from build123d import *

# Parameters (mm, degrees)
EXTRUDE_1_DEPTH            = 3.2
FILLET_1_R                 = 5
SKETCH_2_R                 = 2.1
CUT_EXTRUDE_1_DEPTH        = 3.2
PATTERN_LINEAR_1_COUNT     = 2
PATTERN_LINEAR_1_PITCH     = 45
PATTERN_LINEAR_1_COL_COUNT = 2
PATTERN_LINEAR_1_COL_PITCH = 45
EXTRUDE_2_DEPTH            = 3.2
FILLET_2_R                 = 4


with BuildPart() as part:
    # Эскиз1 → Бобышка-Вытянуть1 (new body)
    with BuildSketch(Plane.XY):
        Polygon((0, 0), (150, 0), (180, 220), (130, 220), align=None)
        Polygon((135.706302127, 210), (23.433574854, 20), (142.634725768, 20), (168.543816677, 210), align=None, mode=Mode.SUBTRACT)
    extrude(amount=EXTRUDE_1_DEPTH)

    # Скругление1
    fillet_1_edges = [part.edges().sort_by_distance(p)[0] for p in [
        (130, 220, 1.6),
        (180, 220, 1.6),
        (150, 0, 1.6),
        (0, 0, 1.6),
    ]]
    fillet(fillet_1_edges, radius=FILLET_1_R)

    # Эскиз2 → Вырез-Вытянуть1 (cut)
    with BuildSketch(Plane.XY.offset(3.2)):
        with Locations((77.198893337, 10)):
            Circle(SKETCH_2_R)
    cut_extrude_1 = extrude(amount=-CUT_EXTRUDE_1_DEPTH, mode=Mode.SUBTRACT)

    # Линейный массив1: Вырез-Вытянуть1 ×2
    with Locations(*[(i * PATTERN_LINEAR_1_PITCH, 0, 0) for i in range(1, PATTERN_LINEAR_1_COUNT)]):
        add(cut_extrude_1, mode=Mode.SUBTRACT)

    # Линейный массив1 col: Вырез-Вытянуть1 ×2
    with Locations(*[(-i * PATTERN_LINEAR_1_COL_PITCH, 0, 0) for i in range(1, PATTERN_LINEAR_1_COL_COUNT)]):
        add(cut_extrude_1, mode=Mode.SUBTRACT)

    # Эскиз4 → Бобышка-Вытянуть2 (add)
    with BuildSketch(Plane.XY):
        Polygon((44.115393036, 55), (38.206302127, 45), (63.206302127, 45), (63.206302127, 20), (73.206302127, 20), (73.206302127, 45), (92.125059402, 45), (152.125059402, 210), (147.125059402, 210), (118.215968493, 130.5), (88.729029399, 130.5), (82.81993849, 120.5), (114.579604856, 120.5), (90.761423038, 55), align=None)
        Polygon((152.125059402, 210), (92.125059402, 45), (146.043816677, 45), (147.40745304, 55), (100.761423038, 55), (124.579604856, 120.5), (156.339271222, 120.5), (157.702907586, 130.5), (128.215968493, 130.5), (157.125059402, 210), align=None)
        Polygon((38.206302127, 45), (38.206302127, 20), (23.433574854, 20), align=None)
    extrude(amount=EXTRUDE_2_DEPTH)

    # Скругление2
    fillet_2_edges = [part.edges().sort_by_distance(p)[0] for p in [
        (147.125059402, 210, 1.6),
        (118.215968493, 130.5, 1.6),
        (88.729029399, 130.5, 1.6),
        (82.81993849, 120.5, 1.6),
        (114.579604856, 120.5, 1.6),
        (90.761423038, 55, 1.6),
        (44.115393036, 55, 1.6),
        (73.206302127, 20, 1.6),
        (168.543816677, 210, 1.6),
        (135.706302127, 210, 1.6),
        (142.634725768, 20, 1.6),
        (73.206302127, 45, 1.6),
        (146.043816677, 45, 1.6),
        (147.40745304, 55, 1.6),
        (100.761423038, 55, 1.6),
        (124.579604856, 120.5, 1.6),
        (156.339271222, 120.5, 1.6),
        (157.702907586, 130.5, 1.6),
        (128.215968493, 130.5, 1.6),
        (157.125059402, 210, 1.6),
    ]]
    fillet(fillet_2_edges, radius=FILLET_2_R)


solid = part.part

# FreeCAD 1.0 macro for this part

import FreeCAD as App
import Part
import Sketcher
from FreeCAD import Vector
Q = App.Units.Quantity


def edges_at(feature, points):
    """Names of the edges that pass closest to the given points."""
    edges = feature.Shape.Edges
    near = lambda p: min(range(len(edges)), key=lambda i: edges[i].distToShape(Part.Vertex(*p))[0])
    return sorted({f"Edge{near(p) + 1}" for p in points})

doc = App.newDocument("Part")
body = doc.addObject("PartDesign::Body", "Body")

sketch1 = body.newObject("Sketcher::SketchObject", "Sketch")
sketch1.AttachmentSupport = (doc.getObject("XY_Plane"), [""])
sketch1.MapMode = "FlatFace"
sketch1.addGeometry([
    Part.LineSegment(Vector(0, 0, 0), Vector(150, 0, 0)),
    Part.LineSegment(Vector(150, 0, 0), Vector(180, 220, 0)),
    Part.LineSegment(Vector(180, 220, 0), Vector(130, 220, 0)),
    Part.LineSegment(Vector(130, 220, 0), Vector(0, 0, 0)),
    Part.LineSegment(Vector(23, 20, 0), Vector(136, 210, 0)),
    Part.LineSegment(Vector(136, 210, 0), Vector(169, 210, 0)),
    Part.LineSegment(Vector(169, 210, 0), Vector(143, 20, 0)),
    Part.LineSegment(Vector(143, 20, 0), Vector(23, 20, 0)),
], False)
sketch1.addConstraint([
    Sketcher.Constraint("Coincident", 0, 2, 1, 1),
    Sketcher.Constraint("Coincident", 1, 2, 2, 1),
    Sketcher.Constraint("Coincident", 2, 2, 3, 1),
    Sketcher.Constraint("Coincident", 3, 2, 0, 1),
    Sketcher.Constraint("Coincident", 4, 2, 5, 1),
    Sketcher.Constraint("Coincident", 5, 2, 6, 1),
    Sketcher.Constraint("Coincident", 6, 2, 7, 1),
    Sketcher.Constraint("Coincident", 7, 2, 4, 1),
    Sketcher.Constraint("Horizontal", 0),
    Sketcher.Constraint("Horizontal", 2),
    Sketcher.Constraint("Horizontal", 5),
    Sketcher.Constraint("Horizontal", 7),
    Sketcher.Constraint("Coincident", 3, 2, -1, 1),
    Sketcher.Constraint("Parallel", 3, 4),
    Sketcher.Constraint("Parallel", 1, 6),
    Sketcher.Constraint("DistanceX", 0, 1, 0, 2, Q("150 mm")),
    Sketcher.Constraint("DistanceX", 2, 2, 2, 1, Q("50 mm")),
    Sketcher.Constraint("DistanceX", -1, 1, 1, 2, Q("180 mm")),
    Sketcher.Constraint("DistanceY", -1, 1, 1, 2, Q("220 mm")),
    Sketcher.Constraint("DistanceY", -1, 1, 4, 2, Q("210 mm")),
    Sketcher.Constraint("DistanceY", -1, 1, 6, 2, Q("20 mm")),
    Sketcher.Constraint("DistanceX", 7, 2, 7, 1, Q("119.201151 mm")),
    Sketcher.Constraint("DistanceX", -1, 1, 4, 2, Q("135.706302 mm")),
])
pad1 = body.newObject("PartDesign::Pad", "Pad")
pad1.Profile = sketch1
pad1.Length = 3.2
doc.recompute()

fillet = body.newObject("PartDesign::Fillet", "Fillet")
fillet.Base = (pad1, edges_at(pad1, [
    (130, 220, 1.6),
    (180, 220, 1.6),
    (150, 0, 1.6),
    (0, 0, 1.6),
]))
fillet.Radius = 5

sketch2 = body.newObject("Sketcher::SketchObject", "Sketch001")
sketch2.AttachmentSupport = (doc.getObject("XY_Plane"), [""])
sketch2.MapMode = "FlatFace"
sketch2.AttachmentOffset = App.Placement(Vector(0, 0, 3.2), App.Rotation())
sketch2.addGeometry(Part.Circle(Vector(77.2, 10, 0), Vector(0, 0, 1), 2.1), False)
sketch2.addConstraint([
    Sketcher.Constraint("Diameter", 0, Q("4.2 mm")),
    Sketcher.Constraint("DistanceY", -1, 1, 0, 3, Q("10 mm")),
    Sketcher.Constraint("DistanceX", -1, 1, 0, 3, Q("77.198893 mm")),
])
pocket1 = body.newObject("PartDesign::Pocket", "Pocket")
pocket1.Profile = sketch2
pocket1.Length = 3.2
doc.recompute()

linearpattern = body.newObject("PartDesign::LinearPattern", "LinearPattern")
linearpattern.Originals = [pocket1]
linearpattern.Direction = (doc.getObject("X_Axis"), [""])
linearpattern.Mode = "offset"
linearpattern.Offset = 45
linearpattern.Occurrences = 2
body.Tip = linearpattern
doc.recompute()

linearpattern2 = body.newObject("PartDesign::LinearPattern", "LinearPattern001")
linearpattern2.Originals = [pocket1]
linearpattern2.Direction = (doc.getObject("X_Axis"), [""])
linearpattern2.Mode = "offset"
linearpattern2.Offset = 45
linearpattern2.Occurrences = 2
linearpattern2.Reversed = True
body.Tip = linearpattern2

sketch3 = body.newObject("Sketcher::SketchObject", "Sketch002")
sketch3.AttachmentSupport = (doc.getObject("XY_Plane"), [""])
sketch3.MapMode = "FlatFace"
sketch3.addGeometry([
    Part.LineSegment(Vector(44, 55, 0), Vector(38, 45, 0)),
    Part.LineSegment(Vector(38, 45, 0), Vector(63, 45, 0)),
    Part.LineSegment(Vector(63, 45, 0), Vector(63, 20, 0)),
    Part.LineSegment(Vector(63, 20, 0), Vector(73, 20, 0)),
    Part.LineSegment(Vector(73, 20, 0), Vector(73, 45, 0)),
    Part.LineSegment(Vector(73, 45, 0), Vector(146, 45, 0)),
    Part.LineSegment(Vector(146, 45, 0), Vector(147, 55, 0)),
    Part.LineSegment(Vector(147, 55, 0), Vector(101, 55, 0)),
    Part.LineSegment(Vector(101, 55, 0), Vector(125, 120, 0)),
    Part.LineSegment(Vector(125, 120, 0), Vector(156, 120, 0)),
    Part.LineSegment(Vector(156, 120, 0), Vector(158, 130, 0)),
    Part.LineSegment(Vector(158, 130, 0), Vector(128, 130, 0)),
    Part.LineSegment(Vector(128, 130, 0), Vector(157, 210, 0)),
    Part.LineSegment(Vector(157, 210, 0), Vector(147, 210, 0)),
    Part.LineSegment(Vector(147, 210, 0), Vector(118, 130, 0)),
    Part.LineSegment(Vector(118, 130, 0), Vector(89, 130, 0)),
    Part.LineSegment(Vector(89, 130, 0), Vector(83, 120, 0)),
    Part.LineSegment(Vector(83, 120, 0), Vector(115, 120, 0)),
    Part.LineSegment(Vector(115, 120, 0), Vector(91, 55, 0)),
    Part.LineSegment(Vector(91, 55, 0), Vector(44, 55, 0)),
    Part.LineSegment(Vector(38, 20, 0), Vector(38, 45, 0)),
    Part.LineSegment(Vector(38, 45, 0), Vector(23, 20, 0)),
    Part.LineSegment(Vector(23, 20, 0), Vector(38, 20, 0)),
], False)
sketch3.addConstraint([
    Sketcher.Constraint("Coincident", 0, 2, 1, 1),
    Sketcher.Constraint("Coincident", 1, 2, 2, 1),
    Sketcher.Constraint("Coincident", 2, 2, 3, 1),
    Sketcher.Constraint("Coincident", 3, 2, 4, 1),
    Sketcher.Constraint("Coincident", 4, 2, 5, 1),
    Sketcher.Constraint("Coincident", 5, 2, 6, 1),
    Sketcher.Constraint("Coincident", 6, 2, 7, 1),
    Sketcher.Constraint("Coincident", 7, 2, 8, 1),
    Sketcher.Constraint("Coincident", 8, 2, 9, 1),
    Sketcher.Constraint("Coincident", 9, 2, 10, 1),
    Sketcher.Constraint("Coincident", 10, 2, 11, 1),
    Sketcher.Constraint("Coincident", 11, 2, 12, 1),
    Sketcher.Constraint("Coincident", 12, 2, 13, 1),
    Sketcher.Constraint("Coincident", 13, 2, 14, 1),
    Sketcher.Constraint("Coincident", 14, 2, 15, 1),
    Sketcher.Constraint("Coincident", 15, 2, 16, 1),
    Sketcher.Constraint("Coincident", 16, 2, 17, 1),
    Sketcher.Constraint("Coincident", 17, 2, 18, 1),
    Sketcher.Constraint("Coincident", 18, 2, 19, 1),
    Sketcher.Constraint("Coincident", 19, 2, 0, 1),
    Sketcher.Constraint("Coincident", 20, 2, 21, 1),
    Sketcher.Constraint("Coincident", 21, 2, 22, 1),
    Sketcher.Constraint("Coincident", 22, 2, 20, 1),
    Sketcher.Constraint("Horizontal", 1),
    Sketcher.Constraint("Vertical", 2),
    Sketcher.Constraint("Horizontal", 3),
    Sketcher.Constraint("Vertical", 4),
    Sketcher.Constraint("Horizontal", 5),
    Sketcher.Constraint("Horizontal", 7),
    Sketcher.Constraint("Horizontal", 9),
    Sketcher.Constraint("Horizontal", 11),
    Sketcher.Constraint("Horizontal", 13),
    Sketcher.Constraint("Horizontal", 15),
    Sketcher.Constraint("Horizontal", 17),
    Sketcher.Constraint("Horizontal", 19),
    Sketcher.Constraint("Vertical", 20),
    Sketcher.Constraint("Horizontal", 22),
    Sketcher.Constraint("Coincident", 20, 2, 0, 2),
    Sketcher.Constraint("Parallel", 6, 10),
    Sketcher.Constraint("Parallel", 8, 12),
    Sketcher.Constraint("Parallel", 12, 14),
    Sketcher.Constraint("Parallel", 0, 16),
    Sketcher.Constraint("Parallel", 14, 18),
    Sketcher.Constraint("Parallel", 16, 21),
    Sketcher.Constraint("Horizontal", 1, 2, 4, 2),
    Sketcher.Constraint("Horizontal", 11, 2, 14, 2),
    Sketcher.Constraint("Horizontal", 9, 2, 16, 2),
    Sketcher.Constraint("Horizontal", 7, 2, 18, 2),
    Sketcher.Constraint("Horizontal", 3, 2, 21, 2),
    Sketcher.Constraint("Equal", 3, 13),
    Sketcher.Constraint("Equal", 11, 15),
    Sketcher.Constraint("Equal", 9, 17),
    Sketcher.Constraint("Equal", 7, 19),
    Sketcher.Constraint("Equal", 1, 2),
    Sketcher.Constraint("Equal", 6, 10),
    Sketcher.Constraint("DistanceX", 1, 1, 1, 2, Q("25 mm")),
    Sketcher.Constraint("DistanceX", 3, 1, 3, 2, Q("10 mm")),
    Sketcher.Constraint("DistanceY", -1, 1, 0, 2, Q("45 mm")),
    Sketcher.Constraint("DistanceY", -1, 1, 6, 2, Q("55 mm")),
    Sketcher.Constraint("DistanceY", -1, 1, 12, 2, Q("210 mm")),
    Sketcher.Constraint("DistanceX", 17, 2, 8, 2, Q("10 mm")),
    Sketcher.Constraint("DistanceY", -1, 1, 8, 2, Q("120.5 mm")),
    Sketcher.Constraint("DistanceX", 7, 2, 7, 1, Q("46.64603 mm")),
    Sketcher.Constraint("DistanceX", 11, 2, 11, 1, Q("29.486939 mm")),
    Sketcher.Constraint("Distance", 12, Q("84.593058 mm")),
    Sketcher.Constraint("DistanceX", 5, 1, 5, 2, Q("72.837515 mm")),
    Sketcher.Constraint("DistanceX", 22, 1, 22, 2, Q("14.772727 mm")),
    Sketcher.Constraint("DistanceX", -1, 1, 9, 2, Q("156.339271 mm")),
])
pad2 = body.newObject("PartDesign::Pad", "Pad001")
pad2.Profile = sketch3
pad2.Length = 3.2
doc.recompute()

fillet2 = body.newObject("PartDesign::Fillet", "Fillet001")
fillet2.Base = (pad2, edges_at(pad2, [
    (147.125, 210, 1.6),
    (118.216, 130.5, 1.6),
    (88.729, 130.5, 1.6),
    (82.82, 120.5, 1.6),
    (114.58, 120.5, 1.6),
    (90.761, 55, 1.6),
    (44.115, 55, 1.6),
    (73.206, 20, 1.6),
    (168.544, 210, 1.6),
    (135.706, 210, 1.6),
    (142.635, 20, 1.6),
    (73.206, 45, 1.6),
    (146.044, 45, 1.6),
    (147.407, 55, 1.6),
    (100.761, 55, 1.6),
    (124.58, 120.5, 1.6),
    (156.339, 120.5, 1.6),
    (157.703, 130.5, 1.6),
    (128.216, 130.5, 1.6),
    (157.125, 210, 1.6),
]))
fillet2.Radius = 4

doc.recompute()
